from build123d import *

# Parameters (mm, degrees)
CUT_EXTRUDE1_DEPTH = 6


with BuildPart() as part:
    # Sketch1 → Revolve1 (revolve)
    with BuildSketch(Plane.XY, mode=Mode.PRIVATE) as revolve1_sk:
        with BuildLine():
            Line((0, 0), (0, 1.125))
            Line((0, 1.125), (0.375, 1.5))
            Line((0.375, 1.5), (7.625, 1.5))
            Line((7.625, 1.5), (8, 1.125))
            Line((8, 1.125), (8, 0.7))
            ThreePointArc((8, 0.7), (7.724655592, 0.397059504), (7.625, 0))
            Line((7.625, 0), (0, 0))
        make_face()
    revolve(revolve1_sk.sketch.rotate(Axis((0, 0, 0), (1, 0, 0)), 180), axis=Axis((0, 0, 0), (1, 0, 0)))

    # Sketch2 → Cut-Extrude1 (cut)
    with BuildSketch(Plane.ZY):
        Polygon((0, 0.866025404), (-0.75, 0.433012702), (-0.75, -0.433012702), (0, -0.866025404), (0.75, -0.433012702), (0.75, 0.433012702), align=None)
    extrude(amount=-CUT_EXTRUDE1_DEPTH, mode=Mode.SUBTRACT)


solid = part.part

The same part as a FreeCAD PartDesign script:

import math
import FreeCAD as App
import Part
import Sketcher
from FreeCAD import Vector
Q = App.Units.Quantity

doc = App.newDocument("Part")
params = doc.addObject("Spreadsheet::Sheet", "Params")
for row, (alias, value) in enumerate([
    ("sketch1_width", "7.25 mm"),
    ("revolution_angle", "360 deg"),
    ("pocket1_length", "6 mm"),
], start=1):
    params.set(f"A{row}", alias)
    params.set(f"B{row}", "=" + value)
    params.setAlias(f"B{row}", alias)

body = doc.addObject("PartDesign::Body", "Body")

# Sketch on XY plane
sketch1 = body.newObject("Sketcher::SketchObject", "Sketch")
sketch1.AttachmentSupport = (doc.getObject("XY_Plane"), [""])
sketch1.MapMode = "FlatFace"
sketch1.addGeometry(Part.LineSegment(Vector(0, 1.12, 0), Vector(0, 0, 0)), False)
sketch1.addGeometry(Part.LineSegment(Vector(0, 0, 0), Vector(7.62, 0, 0)), False)
sketch1.addGeometry(Part.ArcOfCircle(Part.Circle(Vector(8.47, 0, 0), Vector(0, 0, 1), 0.84), math.radians(124), math.radians(180)), False)
sketch1.addGeometry(Part.LineSegment(Vector(8, 0.7, 0), Vector(8, 1.12, 0)), False)
sketch1.addGeometry(Part.LineSegment(Vector(8, 1.12, 0), Vector(7.62, 1.5, 0)), False)
sketch1.addGeometry(Part.LineSegment(Vector(7.62, 1.5, 0), Vector(0.38, 1.5, 0)), False)
sketch1.addGeometry(Part.LineSegment(Vector(0.38, 1.5, 0), Vector(0, 1.12, 0)), False)
sketch1.addConstraint(Sketcher.Constraint("Coincident", 0, 2, 1, 1))
sketch1.addConstraint(Sketcher.Constraint("Coincident", 1, 2, 2, 2))
sketch1.addConstraint(Sketcher.Constraint("Coincident", 2, 1, 3, 1))
sketch1.addConstraint(Sketcher.Constraint("Coincident", 3, 2, 4, 1))
sketch1.addConstraint(Sketcher.Constraint("Coincident", 4, 2, 5, 1))
sketch1.addConstraint(Sketcher.Constraint("Coincident", 5, 2, 6, 1))
sketch1.addConstraint(Sketcher.Constraint("Coincident", 6, 2, 0, 1))
sketch1.addConstraint(Sketcher.Constraint("Vertical", 0))
sketch1.addConstraint(Sketcher.Constraint("Horizontal", 1))
sketch1.addConstraint(Sketcher.Constraint("Vertical", 3))
sketch1.addConstraint(Sketcher.Constraint("Horizontal", 5))
sketch1.addConstraint(Sketcher.Constraint("Coincident", 0, 2, -1, 1))
sketch1.addConstraint(Sketcher.Constraint("PointOnObject", 2, 3, -1))
sketch1.addConstraint(Sketcher.Constraint("Perpendicular", 4, 6))
sketch1.addConstraint(Sketcher.Constraint("Horizontal", 3, 2, 6, 2))
sketch1.addConstraint(Sketcher.Constraint("Vertical", 1, 2, 4, 2))
sketch1.addConstraint(Sketcher.Constraint("Equal", 4, 6))
sketch1.addConstraint(Sketcher.Constraint("DistanceX", -1, 1, 2, 1, Q("8 mm")))
sketch1.addConstraint(Sketcher.Constraint("DistanceX", 5, 2, 5, 1, Q("7.25 mm")))
sketch1.addConstraint(Sketcher.Constraint("DistanceY", -1, 1, 2, 1, Q("0.7 mm")))
sketch1.addConstraint(Sketcher.Constraint("DistanceY", -1, 1, 4, 2, Q("1.5 mm")))
sketch1.setExpression("Constraints[18]", "Params.sketch1_width")
revolution = body.newObject("PartDesign::Revolution", "Revolution")
revolution.Profile = sketch1
revolution.ReferenceAxis = (sketch1, ["H_Axis"])
revolution.setExpression("Angle", "Params.revolution_angle")

# Sketch on YZ plane
sketch2 = body.newObject("Sketcher::SketchObject", "Sketch001")
sketch2.AttachmentSupport = (doc.getObject("YZ_Plane"), [""])
sketch2.MapMode = "FlatFace"
sketch2.addGeometry(Part.LineSegment(Vector(0.9, 0, 0), Vector(0.4, -0.8, 0)), False)
sketch2.addGeometry(Part.LineSegment(Vector(0.4, -0.8, 0), Vector(-0.4, -0.8, 0)), False)
sketch2.addGeometry(Part.LineSegment(Vector(-0.4, -0.8, 0), Vector(-0.9, 0, 0)), False)
sketch2.addGeometry(Part.LineSegment(Vector(-0.9, 0, 0), Vector(-0.4, 0.8, 0)), False)
sketch2.addGeometry(Part.LineSegment(Vector(-0.4, 0.8, 0), Vector(0.4, 0.8, 0)), False)
sketch2.addGeometry(Part.LineSegment(Vector(0.4, 0.8, 0), Vector(0.9, 0, 0)), False)
sketch2.addConstraint(Sketcher.Constraint("Coincident", 0, 2, 1, 1))
sketch2.addConstraint(Sketcher.Constraint("Coincident", 1, 2, 2, 1))
sketch2.addConstraint(Sketcher.Constraint("Coincident", 2, 2, 3, 1))
sketch2.addConstraint(Sketcher.Constraint("Coincident", 3, 2, 4, 1))
sketch2.addConstraint(Sketcher.Constraint("Coincident", 4, 2, 5, 1))
sketch2.addConstraint(Sketcher.Constraint("Coincident", 5, 2, 0, 1))
sketch2.addConstraint(Sketcher.Constraint("Horizontal", 1))
sketch2.addConstraint(Sketcher.Constraint("Horizontal", 4))
sketch2.addConstraint(Sketcher.Constraint("Symmetric", 0, 2, 3, 2, -1, 1))
sketch2.addConstraint(Sketcher.Constraint("Symmetric", 2, 2, 5, 2, -1, 1))
sketch2.addConstraint(Sketcher.Constraint("PointOnObject", 2, 2, -1))
sketch2.addConstraint(Sketcher.Constraint("Parallel", 2, 5))
sketch2.addConstraint(Sketcher.Constraint("Vertical", 1, 2, 3, 2))
sketch2.addConstraint(Sketcher.Constraint("Angle", 0, Q("-120 deg")))
sketch2.addConstraint(Sketcher.Constraint("DistanceY", 1, 2, 3, 2, Q("1.5 mm")))
sketch2.addConstraint(Sketcher.Constraint("DistanceX", 1, 2, 1, 1, Q("0.866025 mm")))
pocket1 = body.newObject("PartDesign::Pocket", "Pocket")
pocket1.Profile = sketch2
pocket1.setExpression("Length", "Params.pocket1_length")
pocket1.Reversed = True

doc.recompute()
